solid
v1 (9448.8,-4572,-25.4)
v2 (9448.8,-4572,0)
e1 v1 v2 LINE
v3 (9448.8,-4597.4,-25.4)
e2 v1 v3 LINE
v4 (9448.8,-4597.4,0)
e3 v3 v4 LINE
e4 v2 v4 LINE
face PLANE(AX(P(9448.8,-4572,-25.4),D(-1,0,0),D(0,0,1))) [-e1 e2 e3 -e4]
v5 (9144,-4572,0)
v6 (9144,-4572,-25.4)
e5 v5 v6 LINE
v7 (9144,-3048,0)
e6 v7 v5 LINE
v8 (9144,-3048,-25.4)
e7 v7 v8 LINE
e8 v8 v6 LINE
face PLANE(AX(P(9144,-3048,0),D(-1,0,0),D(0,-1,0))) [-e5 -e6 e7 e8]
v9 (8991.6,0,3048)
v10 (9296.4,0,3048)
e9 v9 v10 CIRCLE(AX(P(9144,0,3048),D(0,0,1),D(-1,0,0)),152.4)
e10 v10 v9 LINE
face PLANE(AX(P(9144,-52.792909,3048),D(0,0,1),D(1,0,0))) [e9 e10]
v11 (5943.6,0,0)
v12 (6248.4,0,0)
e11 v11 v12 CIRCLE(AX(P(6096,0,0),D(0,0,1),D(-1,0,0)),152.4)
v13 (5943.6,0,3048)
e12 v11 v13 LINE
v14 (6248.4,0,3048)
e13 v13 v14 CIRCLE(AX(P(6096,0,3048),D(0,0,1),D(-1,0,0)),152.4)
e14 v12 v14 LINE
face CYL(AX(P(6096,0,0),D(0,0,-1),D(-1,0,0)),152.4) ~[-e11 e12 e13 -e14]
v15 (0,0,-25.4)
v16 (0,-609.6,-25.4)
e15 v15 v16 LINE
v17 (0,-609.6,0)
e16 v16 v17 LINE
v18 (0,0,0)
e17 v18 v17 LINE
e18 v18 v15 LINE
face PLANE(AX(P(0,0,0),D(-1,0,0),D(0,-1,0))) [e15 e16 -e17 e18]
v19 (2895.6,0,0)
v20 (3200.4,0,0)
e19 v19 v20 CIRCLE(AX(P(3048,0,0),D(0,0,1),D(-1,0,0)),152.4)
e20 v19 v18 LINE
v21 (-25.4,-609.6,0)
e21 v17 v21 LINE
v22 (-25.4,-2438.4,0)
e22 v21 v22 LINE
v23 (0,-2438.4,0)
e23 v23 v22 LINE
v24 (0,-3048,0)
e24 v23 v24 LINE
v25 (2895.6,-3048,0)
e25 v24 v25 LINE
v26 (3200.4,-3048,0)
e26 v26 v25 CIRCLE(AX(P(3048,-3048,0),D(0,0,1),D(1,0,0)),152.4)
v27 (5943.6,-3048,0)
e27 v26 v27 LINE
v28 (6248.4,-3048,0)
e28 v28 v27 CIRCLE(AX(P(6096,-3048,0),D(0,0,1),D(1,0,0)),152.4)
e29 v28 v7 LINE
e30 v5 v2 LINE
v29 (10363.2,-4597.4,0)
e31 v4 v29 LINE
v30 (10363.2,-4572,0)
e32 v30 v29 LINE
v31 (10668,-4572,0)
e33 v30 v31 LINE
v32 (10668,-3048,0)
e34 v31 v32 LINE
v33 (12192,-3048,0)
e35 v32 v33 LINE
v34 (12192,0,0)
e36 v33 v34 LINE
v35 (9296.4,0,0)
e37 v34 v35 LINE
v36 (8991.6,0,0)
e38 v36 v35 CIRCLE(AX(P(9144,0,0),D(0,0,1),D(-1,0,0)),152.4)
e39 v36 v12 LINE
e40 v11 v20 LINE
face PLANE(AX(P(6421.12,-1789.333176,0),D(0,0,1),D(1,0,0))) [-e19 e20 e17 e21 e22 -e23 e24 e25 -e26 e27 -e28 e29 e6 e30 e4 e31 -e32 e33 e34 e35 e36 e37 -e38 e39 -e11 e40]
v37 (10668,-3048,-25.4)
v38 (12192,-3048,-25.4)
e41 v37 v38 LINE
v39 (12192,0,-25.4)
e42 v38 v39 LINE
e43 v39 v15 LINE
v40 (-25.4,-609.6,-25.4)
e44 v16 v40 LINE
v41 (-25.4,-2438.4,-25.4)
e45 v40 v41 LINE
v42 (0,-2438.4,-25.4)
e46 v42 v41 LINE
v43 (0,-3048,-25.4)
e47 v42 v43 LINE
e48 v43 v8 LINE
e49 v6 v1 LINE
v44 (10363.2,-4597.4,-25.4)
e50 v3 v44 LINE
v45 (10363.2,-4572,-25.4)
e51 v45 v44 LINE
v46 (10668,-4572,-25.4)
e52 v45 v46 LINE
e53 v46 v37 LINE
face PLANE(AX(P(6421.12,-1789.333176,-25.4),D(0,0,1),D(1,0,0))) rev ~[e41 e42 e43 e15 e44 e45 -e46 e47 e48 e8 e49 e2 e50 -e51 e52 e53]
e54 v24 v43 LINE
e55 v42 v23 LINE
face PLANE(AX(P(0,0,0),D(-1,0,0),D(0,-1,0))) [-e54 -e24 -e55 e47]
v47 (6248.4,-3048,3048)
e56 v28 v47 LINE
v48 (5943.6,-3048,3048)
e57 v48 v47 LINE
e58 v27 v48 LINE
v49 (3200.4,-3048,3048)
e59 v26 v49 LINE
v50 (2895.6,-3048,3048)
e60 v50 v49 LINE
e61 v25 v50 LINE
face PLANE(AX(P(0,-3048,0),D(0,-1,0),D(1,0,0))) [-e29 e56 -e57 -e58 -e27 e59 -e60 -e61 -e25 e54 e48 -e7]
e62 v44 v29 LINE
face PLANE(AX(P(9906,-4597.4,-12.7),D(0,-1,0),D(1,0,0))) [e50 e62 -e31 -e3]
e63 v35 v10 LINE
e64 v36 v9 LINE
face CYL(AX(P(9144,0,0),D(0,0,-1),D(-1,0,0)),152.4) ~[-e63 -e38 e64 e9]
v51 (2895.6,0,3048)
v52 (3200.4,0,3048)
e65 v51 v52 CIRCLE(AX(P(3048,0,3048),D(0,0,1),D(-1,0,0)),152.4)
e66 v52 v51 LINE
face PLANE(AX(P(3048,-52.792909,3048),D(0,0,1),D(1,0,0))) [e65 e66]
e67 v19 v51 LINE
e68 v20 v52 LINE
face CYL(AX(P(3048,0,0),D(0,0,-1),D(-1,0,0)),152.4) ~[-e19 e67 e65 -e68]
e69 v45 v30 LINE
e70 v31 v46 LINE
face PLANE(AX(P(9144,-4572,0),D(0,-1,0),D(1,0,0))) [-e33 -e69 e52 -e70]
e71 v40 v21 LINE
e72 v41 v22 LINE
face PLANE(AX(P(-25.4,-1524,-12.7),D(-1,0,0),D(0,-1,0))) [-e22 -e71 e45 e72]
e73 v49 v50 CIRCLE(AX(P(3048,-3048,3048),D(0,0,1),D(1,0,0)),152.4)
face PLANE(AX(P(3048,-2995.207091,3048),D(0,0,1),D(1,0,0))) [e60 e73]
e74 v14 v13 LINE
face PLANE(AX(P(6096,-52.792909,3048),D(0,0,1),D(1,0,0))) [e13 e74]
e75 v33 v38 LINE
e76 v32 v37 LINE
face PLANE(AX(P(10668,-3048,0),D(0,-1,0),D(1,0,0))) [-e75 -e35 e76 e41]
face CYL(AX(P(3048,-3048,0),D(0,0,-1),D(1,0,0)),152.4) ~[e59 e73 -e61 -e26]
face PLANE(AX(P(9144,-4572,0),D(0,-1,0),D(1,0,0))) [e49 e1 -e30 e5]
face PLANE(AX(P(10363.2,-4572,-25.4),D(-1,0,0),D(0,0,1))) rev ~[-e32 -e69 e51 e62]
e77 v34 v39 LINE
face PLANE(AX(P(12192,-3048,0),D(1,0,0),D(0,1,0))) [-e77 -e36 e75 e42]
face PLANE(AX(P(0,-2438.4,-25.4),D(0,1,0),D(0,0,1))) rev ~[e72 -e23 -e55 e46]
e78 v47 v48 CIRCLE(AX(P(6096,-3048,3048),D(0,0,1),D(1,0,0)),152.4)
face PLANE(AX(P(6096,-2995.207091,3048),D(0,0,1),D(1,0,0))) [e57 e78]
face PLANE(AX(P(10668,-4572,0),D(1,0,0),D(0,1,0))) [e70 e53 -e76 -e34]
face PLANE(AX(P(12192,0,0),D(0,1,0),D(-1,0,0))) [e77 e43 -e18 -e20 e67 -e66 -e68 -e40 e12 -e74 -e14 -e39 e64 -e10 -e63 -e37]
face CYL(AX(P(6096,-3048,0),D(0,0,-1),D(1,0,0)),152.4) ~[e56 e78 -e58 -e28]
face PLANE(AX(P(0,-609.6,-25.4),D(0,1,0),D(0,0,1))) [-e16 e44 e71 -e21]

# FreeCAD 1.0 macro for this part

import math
import FreeCAD as App
import Part
import Sketcher
from FreeCAD import Vector
Q = App.Units.Quantity


def add_polygon(sketch, points):
    """Adds a closed chain of lines whose ends are joined by coincident constraints."""
    first, n = sketch.GeometryCount, len(points)
    for a, b in zip(points, points[1:] + points[:1]):
        sketch.addGeometry(Part.LineSegment(App.Vector(*a, 0), App.Vector(*b, 0)), False)
    for i in range(n):
        sketch.addConstraint(Sketcher.Constraint("Coincident", first + i, 2, first + (i + 1) % n, 1))

doc = App.newDocument("Part")
params = doc.addObject("Spreadsheet::Sheet", "Params")
for row, (alias, value) in enumerate([
    ("sketch1_width", "360 in"),
    ("sketch1_width2", "60 in"),
    ("sketch1_height", "120 in"),
    ("pad1_length", "1 in"),
    ("sketch2_radius", "6 in"),
    ("pad2_length", "120 in"),
    ("sketch3_width", "36 in"),
    ("sketch3_height", "1 in"),
    ("pad3_length", "1 in"),
    ("sketch4_width", "72 in"),
    ("sketch4_height", "1 in"),
    ("pad4_length", "1 in"),
], start=1):
    params.set(f"A{row}", alias)
    params.set(f"B{row}", "=" + value)
    params.setAlias(f"B{row}", alias)

body = doc.addObject("PartDesign::Body", "Body")

# Sketch on XY plane
sketch1 = body.newObject("Sketcher::SketchObject", "Sketch")
sketch1.AttachmentSupport = (doc.getObject("XY_Plane"), [""])
sketch1.MapMode = "FlatFace"
add_polygon(sketch1, [(0, 0), (0, -3048), (9144, -3048), (9144, -4572), (10668, -4572), (10668, -3048), (12192, -3048), (12192, 0)])  # lines 0-7
sketch1.addConstraint(Sketcher.Constraint("Vertical", 0))
sketch1.addConstraint(Sketcher.Constraint("Horizontal", 1))
sketch1.addConstraint(Sketcher.Constraint("Vertical", 2))
sketch1.addConstraint(Sketcher.Constraint("Horizontal", 3))
sketch1.addConstraint(Sketcher.Constraint("Vertical", 4))
sketch1.addConstraint(Sketcher.Constraint("Horizontal", 5))
sketch1.addConstraint(Sketcher.Constraint("Vertical", 6))
sketch1.addConstraint(Sketcher.Constraint("Horizontal", 7))
sketch1.addConstraint(Sketcher.Constraint("Coincident", 7, 2, -1, 1))
sketch1.addConstraint(Sketcher.Constraint("Horizontal", 1, 2, 4, 2))
sketch1.addConstraint(Sketcher.Constraint("Equal", 3, 5))
sketch1.addConstraint(Sketcher.Constraint("Equal", 5, 2))
sketch1.addConstraint(Sketcher.Constraint("DistanceX", 1, 1, 1, 2, Q("360 in")))
sketch1.addConstraint(Sketcher.Constraint("DistanceX", 3, 1, 3, 2, Q("60 in")))
sketch1.addConstraint(Sketcher.Constraint("DistanceY", 0, 2, 0, 1, Q("120 in")))
sketch1.setExpression("Constraints[20]", "Params.sketch1_width")
sketch1.setExpression("Constraints[21]", "Params.sketch1_width2")
sketch1.setExpression("Constraints[22]", "Params.sketch1_height")
pad1 = body.newObject("PartDesign::Pad", "Pad")
pad1.Profile = sketch1
pad1.setExpression("Length", "Params.pad1_length")
pad1.Reversed = True

# Sketch on XY plane
sketch2 = body.newObject("Sketcher::SketchObject", "Sketch001")
sketch2.AttachmentSupport = (doc.getObject("XY_Plane"), [""])
sketch2.MapMode = "FlatFace"
sketch2.addGeometry(Part.LineSegment(Vector(3200, 0, 0), Vector(2896, 0, 0)), False)
sketch2.addGeometry(Part.ArcOfCircle(Part.Circle(Vector(3048, 0, 0), Vector(0, 0, 1), 152), math.radians(180), math.radians(360)), False)
sketch2.addGeometry(Part.LineSegment(Vector(6248, 0, 0), Vector(5944, 0, 0)), False)
sketch2.addGeometry(Part.ArcOfCircle(Part.Circle(Vector(6096, 0, 0), Vector(0, 0, 1), 152), math.radians(180), math.radians(360)), False)
sketch2.addGeometry(Part.ArcOfCircle(Part.Circle(Vector(3048, -3048, 0), Vector(0, 0, 1), 152), math.radians(0), math.radians(180)), False)
sketch2.addGeometry(Part.LineSegment(Vector(2896, -3048, 0), Vector(3200, -3048, 0)), False)
sketch2.addGeometry(Part.ArcOfCircle(Part.Circle(Vector(6096, -3048, 0), Vector(0, 0, 1), 152), math.radians(0), math.radians(180)), False)
sketch2.addGeometry(Part.LineSegment(Vector(5944, -3048, 0), Vector(6248, -3048, 0)), False)
sketch2.addGeometry(Part.LineSegment(Vector(9296, 0, 0), Vector(8992, 0, 0)), False)
sketch2.addGeometry(Part.ArcOfCircle(Part.Circle(Vector(9144, 0, 0), Vector(0, 0, 1), 152), math.radians(180), math.radians(360)), False)
sketch2.addConstraint(Sketcher.Constraint("Coincident", 0, 1, 1, 2))
sketch2.addConstraint(Sketcher.Constraint("Coincident", 1, 1, 0, 2))
sketch2.addConstraint(Sketcher.Constraint("Coincident", 2, 1, 3, 2))
sketch2.addConstraint(Sketcher.Constraint("Coincident", 3, 1, 2, 2))
sketch2.addConstraint(Sketcher.Constraint("Coincident", 4, 1, 5, 2))
sketch2.addConstraint(Sketcher.Constraint("Coincident", 5, 1, 4, 2))
sketch2.addConstraint(Sketcher.Constraint("Coincident", 6, 1, 7, 2))
sketch2.addConstraint(Sketcher.Constraint("Coincident", 7, 1, 6, 2))
sketch2.addConstraint(Sketcher.Constraint("Coincident", 8, 1, 9, 2))
sketch2.addConstraint(Sketcher.Constraint("Coincident", 9, 1, 8, 2))
sketch2.addConstraint(Sketcher.Constraint("Horizontal", 0))
sketch2.addConstraint(Sketcher.Constraint("Horizontal", 2))
sketch2.addConstraint(Sketcher.Constraint("Horizontal", 5))
sketch2.addConstraint(Sketcher.Constraint("Horizontal", 7))
sketch2.addConstraint(Sketcher.Constraint("Horizontal", 8))
sketch2.addConstraint(Sketcher.Constraint("Equal", 1, 3))
sketch2.addConstraint(Sketcher.Constraint("Equal", 3, 4))
sketch2.addConstraint(Sketcher.Constraint("Equal", 4, 6))
sketch2.addConstraint(Sketcher.Constraint("Equal", 6, 9))
sketch2.addConstraint(Sketcher.Constraint("PointOnObject", 1, 3, -1))
sketch2.addConstraint(Sketcher.Constraint("PointOnObject", 3, 3, -1))
sketch2.addConstraint(Sketcher.Constraint("PointOnObject", 9, 3, -1))
sketch2.addConstraint(Sketcher.Constraint("PointOnObject", 0, 1, -1))
sketch2.addConstraint(Sketcher.Constraint("PointOnObject", 2, 1, -1))
sketch2.addConstraint(Sketcher.Constraint("PointOnObject", 8, 1, -1))
sketch2.addConstraint(Sketcher.Constraint("Horizontal", 4, 3, 6, 3))
sketch2.addConstraint(Sketcher.Constraint("Horizontal", 6, 3, 4, 1))
sketch2.addConstraint(Sketcher.Constraint("Horizontal", 5, 1, 6, 1))
sketch2.addConstraint(Sketcher.Constraint("Vertical", 1, 3, 4, 3))
sketch2.addConstraint(Sketcher.Constraint("Vertical", 3, 3, 6, 3))
sketch2.addConstraint(Sketcher.Constraint("Radius", 1, Q("6 in")))
sketch2.addConstraint(Sketcher.Constraint("DistanceX", -1, 1, 1, 3, Q("120 in")))
sketch2.addConstraint(Sketcher.Constraint("DistanceX", -1, 1, 3, 3, Q("240 in")))
sketch2.addConstraint(Sketcher.Constraint("DistanceY", 4, 3, -1, 1, Q("120 in")))
sketch2.addConstraint(Sketcher.Constraint("DistanceX", -1, 1, 9, 3, Q("360 in")))
sketch2.setExpression("Constraints[30]", "Params.sketch2_radius")
pad2 = body.newObject("PartDesign::Pad", "Pad001")
pad2.Profile = sketch2
pad2.setExpression("Length", "Params.pad2_length")

# Sketch on XZ plane
sketch3 = body.newObject("Sketcher::SketchObject", "Sketch002")
sketch3.AttachmentSupport = (doc.getObject("XZ_Plane"), [""])
sketch3.MapMode = "FlatFace"
sketch3.AttachmentOffset = App.Placement(Vector(0, 0, 180 * 25.4), App.Rotation())
add_polygon(sketch3, [(9449, 0), (9449, -25), (10363, -25), (10363, 0)])  # lines 0-3
sketch3.addConstraint(Sketcher.Constraint("Vertical", 0))
sketch3.addConstraint(Sketcher.Constraint("Horizontal", 1))
sketch3.addConstraint(Sketcher.Constraint("Vertical", 2))
sketch3.addConstraint(Sketcher.Constraint("Horizontal", 3))
sketch3.addConstraint(Sketcher.Constraint("PointOnObject", 2, 2, -1))
sketch3.addConstraint(Sketcher.Constraint("DistanceX", 1, 1, 1, 2, Q("36 in")))
sketch3.addConstraint(Sketcher.Constraint("DistanceY", 0, 2, 0, 1, Q("1 in")))
sketch3.addConstraint(Sketcher.Constraint("DistanceX", -1, 1, 0, 2, Q("372 in")))
sketch3.setExpression("Constraints[9]", "Params.sketch3_width")
sketch3.setExpression("Constraints[10]", "Params.sketch3_height")
pad3 = body.newObject("PartDesign::Pad", "Pad002")
pad3.Profile = sketch3
pad3.setExpression("Length", "Params.pad3_length")

# Sketch on YZ plane
sketch4 = body.newObject("Sketcher::SketchObject", "Sketch003")
sketch4.AttachmentSupport = (doc.getObject("YZ_Plane"), [""])
sketch4.MapMode = "FlatFace"
add_polygon(sketch4, [(-610, 0), (-610, -25), (-2438, -25), (-2438, 0)])  # lines 0-3
sketch4.addConstraint(Sketcher.Constraint("Vertical", 0))
sketch4.addConstraint(Sketcher.Constraint("Horizontal", 1))
sketch4.addConstraint(Sketcher.Constraint("Vertical", 2))
sketch4.addConstraint(Sketcher.Constraint("Horizontal", 3))
sketch4.addConstraint(Sketcher.Constraint("PointOnObject", 2, 2, -1))
sketch4.addConstraint(Sketcher.Constraint("DistanceX", 1, 2, 1, 1, Q("72 in")))
sketch4.addConstraint(Sketcher.Constraint("DistanceY", 0, 2, 0, 1, Q("1 in")))
sketch4.addConstraint(Sketcher.Constraint("DistanceX", 0, 2, -1, 1, Q("24 in")))
sketch4.setExpression("Constraints[9]", "Params.sketch4_width")
sketch4.setExpression("Constraints[10]", "Params.sketch4_height")
pad4 = body.newObject("PartDesign::Pad", "Pad003")
pad4.Profile = sketch4
pad4.setExpression("Length", "Params.pad4_length")
pad4.Reversed = True

doc.recompute()
